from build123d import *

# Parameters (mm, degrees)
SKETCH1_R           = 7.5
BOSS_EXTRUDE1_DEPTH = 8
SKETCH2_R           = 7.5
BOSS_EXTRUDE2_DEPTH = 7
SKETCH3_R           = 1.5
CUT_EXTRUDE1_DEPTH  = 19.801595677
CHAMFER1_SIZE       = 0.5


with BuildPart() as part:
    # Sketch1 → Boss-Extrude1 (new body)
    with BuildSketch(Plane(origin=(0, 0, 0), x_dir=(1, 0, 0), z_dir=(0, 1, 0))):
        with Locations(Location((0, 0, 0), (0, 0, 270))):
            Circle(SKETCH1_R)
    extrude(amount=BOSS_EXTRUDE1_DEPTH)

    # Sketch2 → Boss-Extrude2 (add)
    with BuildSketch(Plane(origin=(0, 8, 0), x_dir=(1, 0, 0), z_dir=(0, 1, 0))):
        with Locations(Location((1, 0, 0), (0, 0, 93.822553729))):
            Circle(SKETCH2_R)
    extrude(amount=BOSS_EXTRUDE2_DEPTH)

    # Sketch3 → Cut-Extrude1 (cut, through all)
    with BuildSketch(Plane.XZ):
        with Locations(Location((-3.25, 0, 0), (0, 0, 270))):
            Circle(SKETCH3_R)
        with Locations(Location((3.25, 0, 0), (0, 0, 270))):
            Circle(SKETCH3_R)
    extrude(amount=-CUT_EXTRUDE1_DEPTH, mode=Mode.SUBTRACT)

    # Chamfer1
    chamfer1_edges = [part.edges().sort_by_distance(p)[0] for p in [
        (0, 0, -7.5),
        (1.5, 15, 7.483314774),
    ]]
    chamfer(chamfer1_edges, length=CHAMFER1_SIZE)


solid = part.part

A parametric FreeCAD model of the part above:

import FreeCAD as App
import Part
import Sketcher

V = App.Vector
Q = App.Units.Quantity


def edges_at(feature, points):
    """Names of the edges that pass closest to the given points."""
    edges = feature.Shape.Edges
    near = lambda p: min(range(len(edges)), key=lambda i: edges[i].distToShape(Part.Vertex(*p))[0])
    return sorted({f"Edge{near(p) + 1}" for p in points})

doc = App.newDocument("Part")
body = doc.addObject("PartDesign::Body", "Body")

# Sketch on XZ plane
sketch1 = doc.addObject("Sketcher::SketchObject", "Sketch")
body.addObject(sketch1)
sketch1.AttachmentSupport = (doc.XZ_Plane, [""])
sketch1.MapMode = "FlatFace"
sketch1.addGeometry(Part.Circle(V(0, 0, 0), V(0, 0, 1), 8), False)
sketch1.addConstraint(Sketcher.Constraint("Coincident", 0, 3, -1, 1))
sketch1.addConstraint(Sketcher.Constraint("Diameter", 0, Q("15 mm")))
pad1 = doc.addObject("PartDesign::Pad", "Pad")
body.addObject(pad1)
pad1.Profile = sketch1
pad1.Length = 8
pad1.Reversed = True

# Sketch on XZ plane
sketch2 = doc.addObject("Sketcher::SketchObject", "Sketch001")
body.addObject(sketch2)
sketch2.AttachmentSupport = (doc.XZ_Plane, [""])
sketch2.MapMode = "FlatFace"
sketch2.AttachmentOffset = App.Placement(V(0, 0, -8), App.Rotation())
sketch2.addGeometry(Part.Circle(V(1, 0, 0), V(0, 0, 1), 8), False)
sketch2.addConstraint(Sketcher.Constraint("PointOnObject", 0, 3, -1))
sketch2.addConstraint(Sketcher.Constraint("Diameter", 0, Q("15 mm")))
sketch2.addConstraint(Sketcher.Constraint("DistanceX", -1, 1, 0, 3, Q("1 mm")))
pad2 = doc.addObject("PartDesign::Pad", "Pad001")
body.addObject(pad2)
pad2.Profile = sketch2
pad2.Length = 7
pad2.Reversed = True

# Sketch on XZ plane
sketch3 = doc.addObject("Sketcher::SketchObject", "Sketch002")
body.addObject(sketch3)
sketch3.AttachmentSupport = (doc.XZ_Plane, [""])
sketch3.MapMode = "FlatFace"
sketch3.addGeometry(Part.Circle(V(-3.2, 0, 0), V(0, 0, 1), 1.5), False)
sketch3.addGeometry(Part.Circle(V(3.2, 0, 0), V(0, 0, 1), 1.5), False)
sketch3.addConstraint(Sketcher.Constraint("Equal", 0, 1))
sketch3.addConstraint(Sketcher.Constraint("Symmetric", 0, 3, 1, 3, -1, 1))
sketch3.addConstraint(Sketcher.Constraint("PointOnObject", 0, 3, -1))
sketch3.addConstraint(Sketcher.Constraint("Diameter", 0, Q("3 mm")))
sketch3.addConstraint(Sketcher.Constraint("DistanceX", 0, 3, 1, 3, Q("6.5 mm")))
pocket1 = doc.addObject("PartDesign::Pocket", "Pocket")
body.addObject(pocket1)
pocket1.Profile = sketch3
pocket1.Type = "ThroughAll"
doc.recompute()

chamfer = doc.addObject("PartDesign::Chamfer", "Chamfer")
body.addObject(chamfer)
chamfer.Base = (pocket1, edges_at(pocket1, [(0, 0, -7.5), (1.5, 15, 7.483)]))
chamfer.Size = 0.5

doc.recompute()
